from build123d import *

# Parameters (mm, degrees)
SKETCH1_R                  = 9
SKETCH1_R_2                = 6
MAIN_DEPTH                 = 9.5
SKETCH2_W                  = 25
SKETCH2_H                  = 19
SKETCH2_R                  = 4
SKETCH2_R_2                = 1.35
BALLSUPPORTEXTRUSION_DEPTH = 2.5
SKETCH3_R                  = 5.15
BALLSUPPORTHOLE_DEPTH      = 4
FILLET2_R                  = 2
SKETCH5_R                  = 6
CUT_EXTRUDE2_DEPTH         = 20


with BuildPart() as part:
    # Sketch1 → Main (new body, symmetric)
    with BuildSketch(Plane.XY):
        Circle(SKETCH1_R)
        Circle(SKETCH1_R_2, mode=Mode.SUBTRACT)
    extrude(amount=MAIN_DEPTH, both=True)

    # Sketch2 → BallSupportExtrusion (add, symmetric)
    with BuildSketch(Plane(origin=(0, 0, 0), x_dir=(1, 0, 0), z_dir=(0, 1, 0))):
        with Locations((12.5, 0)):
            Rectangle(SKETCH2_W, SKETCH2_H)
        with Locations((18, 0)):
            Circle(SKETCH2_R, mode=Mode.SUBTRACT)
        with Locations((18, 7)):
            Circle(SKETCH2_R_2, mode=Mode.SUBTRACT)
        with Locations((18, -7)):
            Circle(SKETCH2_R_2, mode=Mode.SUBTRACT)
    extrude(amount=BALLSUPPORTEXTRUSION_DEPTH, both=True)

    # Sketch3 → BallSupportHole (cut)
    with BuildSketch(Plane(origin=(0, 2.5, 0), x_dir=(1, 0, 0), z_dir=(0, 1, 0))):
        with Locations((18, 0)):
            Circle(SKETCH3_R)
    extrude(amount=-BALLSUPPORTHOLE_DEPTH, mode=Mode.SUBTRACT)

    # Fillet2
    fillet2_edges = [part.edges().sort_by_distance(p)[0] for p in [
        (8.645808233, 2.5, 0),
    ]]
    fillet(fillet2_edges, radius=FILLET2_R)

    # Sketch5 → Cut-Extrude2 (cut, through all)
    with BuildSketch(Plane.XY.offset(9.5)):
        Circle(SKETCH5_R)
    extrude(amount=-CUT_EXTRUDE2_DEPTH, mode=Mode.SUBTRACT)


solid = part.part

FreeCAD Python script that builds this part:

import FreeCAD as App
import Part
import Sketcher

V = App.Vector


def edges_at(feature, points):
    """Names of the edges that pass closest to the given points."""
    edges = feature.Shape.Edges
    near = lambda p: min(range(len(edges)), key=lambda i: edges[i].distToShape(Part.Vertex(*p))[0])
    return sorted({f"Edge{near(p) + 1}" for p in points})


def add_polygon(sketch, points):
    """Adds a closed chain of lines whose ends are joined by coincident constraints."""
    first, n = sketch.GeometryCount, len(points)
    for a, b in zip(points, points[1:] + points[:1]):
        sketch.addGeometry(Part.LineSegment(App.Vector(*a, 0), App.Vector(*b, 0)), False)
    for i in range(n):
        sketch.addConstraint(Sketcher.Constraint("Coincident", first + i, 2, first + (i + 1) % n, 1))

doc = App.newDocument("Part")
body = doc.addObject("PartDesign::Body", "Body")

# Sketch on XY plane
sketch1 = body.newObject("Sketcher::SketchObject", "Sketch")
sketch1.AttachmentSupport = (doc.getObject("XY_Plane"), [""])
sketch1.MapMode = "FlatFace"
sketch1.addGeometry(Part.Circle(V(0, 0, 0), V(0, 0, 1), 9), False)
sketch1.addGeometry(Part.Circle(V(0, 0, 0), V(0, 0, 1), 6), False)
sketch1.addConstraint(Sketcher.Constraint("Coincident", 0, 3, -1, 1))
sketch1.addConstraint(Sketcher.Constraint("Coincident", 1, 3, -1, 1))
sketch1.addConstraint(Sketcher.Constraint("Diameter", 0, 18.0))
sketch1.addConstraint(Sketcher.Constraint("Diameter", 1, 12.0))
pad1 = body.newObject("PartDesign::Pad", "Pad")
pad1.Profile = sketch1
pad1.Length = 19
pad1.Midplane = True

# Sketch on XZ plane
sketch2 = body.newObject("Sketcher::SketchObject", "Sketch001")
sketch2.AttachmentSupport = (doc.getObject("XZ_Plane"), [""])
sketch2.MapMode = "FlatFace"
add_polygon(sketch2, [(0, -9.5), (0, 9.5), (25, 9.5), (25, -9.5)])  # lines 0-3
sketch2.addGeometry(Part.Circle(V(18, 7, 0), V(0, 0, 1), 1.4), False)  # 4
sketch2.addGeometry(Part.Circle(V(18, 0, 0), V(0, 0, 1), 4), False)  # 5
sketch2.addGeometry(Part.Circle(V(18, -7, 0), V(0, 0, 1), 1.4), False)  # 6
sketch2.addConstraint(Sketcher.Constraint("Vertical", 0))
sketch2.addConstraint(Sketcher.Constraint("Horizontal", 1))
sketch2.addConstraint(Sketcher.Constraint("Vertical", 2))
sketch2.addConstraint(Sketcher.Constraint("Horizontal", 3))
sketch2.addConstraint(Sketcher.Constraint("Equal", 4, 6))
sketch2.addConstraint(Sketcher.Constraint("Symmetric", 0, 2, 3, 2, -1, 1))
sketch2.addConstraint(Sketcher.Constraint("Symmetric", 4, 3, 6, 3, -1))
sketch2.addConstraint(Sketcher.Constraint("PointOnObject", 5, 3, -1))
sketch2.addConstraint(Sketcher.Constraint("Vertical", 4, 3, 5, 3))
sketch2.addConstraint(Sketcher.Constraint("Diameter", 5, 8.0))
sketch2.addConstraint(Sketcher.Constraint("Diameter", 4, 2.7))
sketch2.addConstraint(Sketcher.Constraint("DistanceX", 1, 1, 1, 2, 25.0))
sketch2.addConstraint(Sketcher.Constraint("DistanceY", 0, 1, 0, 2, 19.0))
sketch2.addConstraint(Sketcher.Constraint("DistanceX", -1, 1, 4, 3, 18.0))
sketch2.addConstraint(Sketcher.Constraint("DistanceY", -1, 1, 4, 3, 7.0))
pad2 = body.newObject("PartDesign::Pad", "Pad001")
pad2.Profile = sketch2
pad2.Length = 5
pad2.Midplane = True

# Sketch on XZ plane
sketch3 = body.newObject("Sketcher::SketchObject", "Sketch002")
sketch3.AttachmentSupport = (doc.getObject("XZ_Plane"), [""])
sketch3.MapMode = "FlatFace"
sketch3.AttachmentOffset = App.Placement(V(0, 0, -2.5), App.Rotation())
sketch3.addGeometry(Part.Circle(V(18, 0, 0), V(0, 0, 1), 5), False)
sketch3.addConstraint(Sketcher.Constraint("PointOnObject", 0, 3, -1))
sketch3.addConstraint(Sketcher.Constraint("Diameter", 0, 10.3))
sketch3.addConstraint(Sketcher.Constraint("DistanceX", -1, 1, 0, 3, 18.0))
pocket1 = body.newObject("PartDesign::Pocket", "Pocket")
pocket1.Profile = sketch3
pocket1.Length = 4
pocket1.Reversed = True
doc.recompute()

fillet = body.newObject("PartDesign::Fillet", "Fillet")
fillet.Base = (pocket1, edges_at(pocket1, [(8.646, 2.5, 0)]))
fillet.Radius = 2

# Sketch on XY plane
sketch4 = body.newObject("Sketcher::SketchObject", "Sketch003")
sketch4.AttachmentSupport = (doc.getObject("XY_Plane"), [""])
sketch4.MapMode = "FlatFace"
sketch4.AttachmentOffset = App.Placement(V(0, 0, 9.5), App.Rotation())
sketch4.addGeometry(Part.Circle(V(0, 0, 0), V(0, 0, 1), 6), False)
sketch4.addConstraint(Sketcher.Constraint("Coincident", 0, 3, -1, 1))
sketch4.addConstraint(Sketcher.Constraint("Diameter", 0, 12.0))
pocket2 = body.newObject("PartDesign::Pocket", "Pocket001")
pocket2.Profile = sketch4
pocket2.Type = "ThroughAll"

doc.recompute()
